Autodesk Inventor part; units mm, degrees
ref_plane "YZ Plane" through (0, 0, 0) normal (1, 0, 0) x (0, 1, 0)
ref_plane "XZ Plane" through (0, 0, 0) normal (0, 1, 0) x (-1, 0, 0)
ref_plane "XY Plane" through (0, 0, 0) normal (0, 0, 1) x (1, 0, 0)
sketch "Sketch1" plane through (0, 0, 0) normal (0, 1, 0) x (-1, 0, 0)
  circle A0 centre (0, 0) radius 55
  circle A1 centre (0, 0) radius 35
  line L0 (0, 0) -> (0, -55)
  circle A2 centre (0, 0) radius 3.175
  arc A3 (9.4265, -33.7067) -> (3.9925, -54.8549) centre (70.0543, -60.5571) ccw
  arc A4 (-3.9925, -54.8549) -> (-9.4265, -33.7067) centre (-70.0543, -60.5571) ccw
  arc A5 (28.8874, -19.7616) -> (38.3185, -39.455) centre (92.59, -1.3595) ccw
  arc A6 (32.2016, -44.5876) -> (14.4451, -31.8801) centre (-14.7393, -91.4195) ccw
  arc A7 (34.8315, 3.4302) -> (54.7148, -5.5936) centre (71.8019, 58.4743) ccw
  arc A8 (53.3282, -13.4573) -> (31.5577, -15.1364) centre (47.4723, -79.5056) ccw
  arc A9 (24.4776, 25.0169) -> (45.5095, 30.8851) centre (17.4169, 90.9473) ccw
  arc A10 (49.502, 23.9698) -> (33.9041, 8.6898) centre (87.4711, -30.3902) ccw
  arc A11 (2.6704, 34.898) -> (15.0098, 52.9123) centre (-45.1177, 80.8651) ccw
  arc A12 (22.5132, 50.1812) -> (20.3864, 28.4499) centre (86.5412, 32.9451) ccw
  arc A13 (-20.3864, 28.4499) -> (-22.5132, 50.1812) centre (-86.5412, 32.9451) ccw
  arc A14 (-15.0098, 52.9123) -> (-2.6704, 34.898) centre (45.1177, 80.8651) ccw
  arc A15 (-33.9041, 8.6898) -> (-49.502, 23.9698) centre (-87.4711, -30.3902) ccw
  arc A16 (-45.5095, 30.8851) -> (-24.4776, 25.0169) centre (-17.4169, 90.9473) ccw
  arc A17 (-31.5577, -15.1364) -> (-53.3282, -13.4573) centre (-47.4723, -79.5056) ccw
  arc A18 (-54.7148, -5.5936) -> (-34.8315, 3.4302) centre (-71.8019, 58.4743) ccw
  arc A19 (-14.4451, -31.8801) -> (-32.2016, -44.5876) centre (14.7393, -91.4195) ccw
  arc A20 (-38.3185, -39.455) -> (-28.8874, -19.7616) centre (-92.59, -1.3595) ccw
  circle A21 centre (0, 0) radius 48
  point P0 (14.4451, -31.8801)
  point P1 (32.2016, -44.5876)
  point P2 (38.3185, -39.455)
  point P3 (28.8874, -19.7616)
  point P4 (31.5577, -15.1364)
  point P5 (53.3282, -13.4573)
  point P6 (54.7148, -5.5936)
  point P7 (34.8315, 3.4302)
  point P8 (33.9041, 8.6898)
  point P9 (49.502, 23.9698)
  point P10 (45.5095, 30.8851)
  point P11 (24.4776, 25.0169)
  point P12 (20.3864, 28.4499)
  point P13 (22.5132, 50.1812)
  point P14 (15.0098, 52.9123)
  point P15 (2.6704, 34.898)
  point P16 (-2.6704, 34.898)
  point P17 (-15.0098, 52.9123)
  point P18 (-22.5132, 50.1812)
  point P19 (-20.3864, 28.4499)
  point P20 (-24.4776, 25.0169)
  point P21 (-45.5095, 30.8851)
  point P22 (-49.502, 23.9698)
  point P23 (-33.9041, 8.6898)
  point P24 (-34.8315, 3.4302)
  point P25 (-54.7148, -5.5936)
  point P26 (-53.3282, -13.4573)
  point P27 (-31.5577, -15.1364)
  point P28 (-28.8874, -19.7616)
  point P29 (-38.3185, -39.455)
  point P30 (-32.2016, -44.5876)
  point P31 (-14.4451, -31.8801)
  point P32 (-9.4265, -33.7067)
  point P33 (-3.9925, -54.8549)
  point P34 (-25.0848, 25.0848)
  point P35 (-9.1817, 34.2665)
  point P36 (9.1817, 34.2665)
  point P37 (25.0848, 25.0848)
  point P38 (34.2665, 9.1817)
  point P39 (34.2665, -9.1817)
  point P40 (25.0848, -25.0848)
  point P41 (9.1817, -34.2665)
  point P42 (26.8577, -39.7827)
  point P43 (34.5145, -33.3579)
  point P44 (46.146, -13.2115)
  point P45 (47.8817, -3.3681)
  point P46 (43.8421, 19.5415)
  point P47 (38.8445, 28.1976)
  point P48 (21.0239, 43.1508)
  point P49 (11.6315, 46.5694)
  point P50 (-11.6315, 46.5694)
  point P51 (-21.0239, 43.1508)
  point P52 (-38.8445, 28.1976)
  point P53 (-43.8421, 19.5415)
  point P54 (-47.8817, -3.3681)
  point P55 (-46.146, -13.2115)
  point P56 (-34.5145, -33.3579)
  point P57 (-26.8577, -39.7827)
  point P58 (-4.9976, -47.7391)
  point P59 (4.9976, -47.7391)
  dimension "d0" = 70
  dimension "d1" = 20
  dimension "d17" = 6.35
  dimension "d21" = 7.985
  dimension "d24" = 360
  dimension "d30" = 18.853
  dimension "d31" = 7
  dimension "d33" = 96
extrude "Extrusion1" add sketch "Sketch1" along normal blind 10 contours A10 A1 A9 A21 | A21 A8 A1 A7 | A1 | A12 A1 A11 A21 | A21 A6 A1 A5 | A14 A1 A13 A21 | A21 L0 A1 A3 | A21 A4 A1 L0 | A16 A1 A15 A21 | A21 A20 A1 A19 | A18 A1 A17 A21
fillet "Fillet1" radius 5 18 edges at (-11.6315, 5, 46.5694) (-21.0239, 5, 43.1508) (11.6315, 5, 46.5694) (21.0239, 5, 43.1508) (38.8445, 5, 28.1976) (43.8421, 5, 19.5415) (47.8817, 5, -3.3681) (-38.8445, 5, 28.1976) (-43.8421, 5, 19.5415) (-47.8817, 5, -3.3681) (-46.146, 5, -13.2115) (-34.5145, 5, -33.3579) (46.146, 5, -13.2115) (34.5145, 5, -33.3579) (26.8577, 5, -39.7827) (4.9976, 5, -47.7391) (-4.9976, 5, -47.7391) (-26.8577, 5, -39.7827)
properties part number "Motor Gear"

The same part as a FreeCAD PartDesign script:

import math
import FreeCAD as App
import Part
import Sketcher
from FreeCAD import Vector


def edges_at(feature, points):
    """Names of the edges that pass closest to the given points."""
    edges = feature.Shape.Edges
    near = lambda p: min(range(len(edges)), key=lambda i: edges[i].distToShape(Part.Vertex(*p))[0])
    return sorted({f"Edge{near(p) + 1}" for p in points})

doc = App.newDocument("Part")
params = doc.addObject("Spreadsheet::Sheet", "Params")
for row, (alias, value) in enumerate([
    ("sketch1_radius", "48 mm"),
    ("sketch1_radius2", "35 mm"),
    ("sketch1_diameter", "6.35 mm"),
    ("pad1_length", "10 mm"),
    ("fillet_radius", "5 mm"),
], start=1):
    params.set(f"A{row}", alias)
    params.set(f"B{row}", "=" + value)
    params.setAlias(f"B{row}", alias)

body = doc.addObject("PartDesign::Body", "Body")

sketch1 = doc.addObject("Sketcher::SketchObject", "Sketch")
body.addObject(sketch1)
sketch1.AttachmentSupport = (doc.XZ_Plane, [""])
sketch1.MapMode = "FlatFace"
sketch1.addGeometry([
    Part.ArcOfCircle(Part.Circle(Vector(-87.5, -30.4, 0), Vector(0, 0, 1), 66.3), math.radians(36.11), math.radians(48.85)),
    Part.ArcOfCircle(Part.Circle(Vector(0, 0, 0), Vector(0, 0, 1), 48), math.radians(144.02), math.radians(155.98)),
    Part.ArcOfCircle(Part.Circle(Vector(-17.4, 90.9, 0), Vector(0, 0, 1), 66.3), math.radians(-108.85), math.radians(-96.11)),
    Part.ArcOfCircle(Part.Circle(Vector(0, 0, 0), Vector(0, 0, 1), 35), math.radians(125.62), math.radians(134.38)),
    Part.ArcOfCircle(Part.Circle(Vector(-86.5, 32.9, 0), Vector(0, 0, 1), 66.3), math.radians(-3.89), math.radians(8.85)),
    Part.ArcOfCircle(Part.Circle(Vector(0, 0, 0), Vector(0, 0, 1), 48), math.radians(104.02), math.radians(115.98)),
    Part.ArcOfCircle(Part.Circle(Vector(45.1, 80.9, 0), Vector(0, 0, 1), 66.3), math.radians(-148.85), math.radians(-136.11)),
    Part.ArcOfCircle(Part.Circle(Vector(0, 0, 0), Vector(0, 0, 1), 35), math.radians(85.62), math.radians(94.38)),
    Part.ArcOfCircle(Part.Circle(Vector(-45.1, 80.9, 0), Vector(0, 0, 1), 66.3), math.radians(-43.89), math.radians(-31.15)),
    Part.ArcOfCircle(Part.Circle(Vector(0, 0, 0), Vector(0, 0, 1), 48), math.radians(64.02), math.radians(75.98)),
    Part.ArcOfCircle(Part.Circle(Vector(86.5, 32.9, 0), Vector(0, 0, 1), 66.3), math.radians(171.15), math.radians(183.89)),
    Part.ArcOfCircle(Part.Circle(Vector(0, 0, 0), Vector(0, 0, 1), 35), math.radians(45.62), math.radians(54.38)),
    Part.ArcOfCircle(Part.Circle(Vector(17.4, 90.9, 0), Vector(0, 0, 1), 66.3), math.radians(-83.89), math.radians(-71.15)),
    Part.ArcOfCircle(Part.Circle(Vector(0, 0, 0), Vector(0, 0, 1), 48), math.radians(24.02), math.radians(35.98)),
    Part.ArcOfCircle(Part.Circle(Vector(87.5, -30.4, 0), Vector(0, 0, 1), 66.3), math.radians(131.15), math.radians(143.89)),
    Part.ArcOfCircle(Part.Circle(Vector(0, 0, 0), Vector(0, 0, 1), 35), math.radians(5.62), math.radians(14.38)),
    Part.ArcOfCircle(Part.Circle(Vector(71.8, 58.5, 0), Vector(0, 0, 1), 66.3), math.radians(-123.89), math.radians(-111.15)),
    Part.ArcOfCircle(Part.Circle(Vector(0, 0, 0), Vector(0, 0, 1), 48), math.radians(-15.98), math.radians(-4.02)),
    Part.ArcOfCircle(Part.Circle(Vector(47.5, -79.5, 0), Vector(0, 0, 1), 66.3), math.radians(91.15), math.radians(103.89)),
    Part.ArcOfCircle(Part.Circle(Vector(0, 0, 0), Vector(0, 0, 1), 35), math.radians(-34.38), math.radians(-25.62)),
    Part.ArcOfCircle(Part.Circle(Vector(92.6, -1.4, 0), Vector(0, 0, 1), 66.3), math.radians(-163.89), math.radians(-151.15)),
    Part.ArcOfCircle(Part.Circle(Vector(0, 0, 0), Vector(0, 0, 1), 48), math.radians(-55.98), math.radians(-44.02)),
    Part.ArcOfCircle(Part.Circle(Vector(-14.7, -91.4, 0), Vector(0, 0, 1), 66.3), math.radians(51.15), math.radians(63.89)),
    Part.ArcOfCircle(Part.Circle(Vector(0, 0, 0), Vector(0, 0, 1), 35), math.radians(-74.38), math.radians(-65.62)),
    Part.ArcOfCircle(Part.Circle(Vector(70.1, -60.6, 0), Vector(0, 0, 1), 66.3), math.radians(156.11), math.radians(168.85)),
    Part.ArcOfCircle(Part.Circle(Vector(0, 0, 0), Vector(0, 0, 1), 48), math.radians(-95.98), math.radians(-84.02)),
    Part.ArcOfCircle(Part.Circle(Vector(-70.1, -60.6, 0), Vector(0, 0, 1), 66.3), math.radians(11.15), math.radians(23.89)),
    Part.ArcOfCircle(Part.Circle(Vector(0, 0, 0), Vector(0, 0, 1), 35), math.radians(-114.38), math.radians(-105.62)),
    Part.ArcOfCircle(Part.Circle(Vector(14.7, -91.4, 0), Vector(0, 0, 1), 66.3), math.radians(116.11), math.radians(128.85)),
    Part.ArcOfCircle(Part.Circle(Vector(0, 0, 0), Vector(0, 0, 1), 48), math.radians(-135.98), math.radians(-124.02)),
    Part.ArcOfCircle(Part.Circle(Vector(-92.6, -1.4, 0), Vector(0, 0, 1), 66.3), math.radians(-28.85), math.radians(-16.11)),
    Part.ArcOfCircle(Part.Circle(Vector(0, 0, 0), Vector(0, 0, 1), 35), math.radians(-154.38), math.radians(-145.62)),
    Part.ArcOfCircle(Part.Circle(Vector(-47.5, -79.5, 0), Vector(0, 0, 1), 66.3), math.radians(76.11), math.radians(88.85)),
    Part.ArcOfCircle(Part.Circle(Vector(0, 0, 0), Vector(0, 0, 1), 48), math.radians(-175.98), math.radians(-164.02)),
    Part.ArcOfCircle(Part.Circle(Vector(-71.8, 58.5, 0), Vector(0, 0, 1), 66.3), math.radians(-68.85), math.radians(-56.11)),
    Part.ArcOfCircle(Part.Circle(Vector(0, 0, 0), Vector(0, 0, 1), 35), math.radians(165.62), math.radians(174.38)),
    Part.Circle(Vector(0, 0, 0), Vector(0, 0, 1), 3.2),
], False)
sketch1.addConstraint([
    Sketcher.Constraint("Coincident", 0, 2, 1, 2),
    Sketcher.Constraint("Coincident", 1, 1, 2, 1),
    Sketcher.Constraint("Coincident", 2, 2, 3, 2),
    Sketcher.Constraint("Coincident", 3, 1, 4, 1),
    Sketcher.Constraint("Coincident", 4, 2, 5, 2),
    Sketcher.Constraint("Coincident", 5, 1, 6, 1),
    Sketcher.Constraint("Coincident", 6, 2, 7, 2),
    Sketcher.Constraint("Coincident", 7, 1, 8, 1),
    Sketcher.Constraint("Coincident", 8, 2, 9, 2),
    Sketcher.Constraint("Coincident", 9, 1, 10, 1),
    Sketcher.Constraint("Coincident", 10, 2, 11, 2),
    Sketcher.Constraint("Coincident", 11, 1, 12, 1),
    Sketcher.Constraint("Coincident", 12, 2, 13, 2),
    Sketcher.Constraint("Coincident", 13, 1, 14, 1),
    Sketcher.Constraint("Coincident", 14, 2, 15, 2),
    Sketcher.Constraint("Coincident", 15, 1, 16, 1),
    Sketcher.Constraint("Coincident", 16, 2, 17, 2),
    Sketcher.Constraint("Coincident", 17, 1, 18, 1),
    Sketcher.Constraint("Coincident", 18, 2, 19, 2),
    Sketcher.Constraint("Coincident", 19, 1, 20, 1),
    Sketcher.Constraint("Coincident", 20, 2, 21, 2),
    Sketcher.Constraint("Coincident", 21, 1, 22, 1),
    Sketcher.Constraint("Coincident", 22, 2, 23, 2),
    Sketcher.Constraint("Coincident", 23, 1, 24, 1),
    Sketcher.Constraint("Coincident", 24, 2, 25, 2),
    Sketcher.Constraint("Coincident", 25, 1, 26, 1),
    Sketcher.Constraint("Coincident", 26, 2, 27, 2),
    Sketcher.Constraint("Coincident", 27, 1, 28, 1),
    Sketcher.Constraint("Coincident", 28, 2, 29, 2),
    Sketcher.Constraint("Coincident", 29, 1, 30, 1),
    Sketcher.Constraint("Coincident", 30, 2, 31, 2),
    Sketcher.Constraint("Coincident", 31, 1, 32, 1),
    Sketcher.Constraint("Coincident", 32, 2, 33, 2),
    Sketcher.Constraint("Coincident", 33, 1, 34, 1),
    Sketcher.Constraint("Coincident", 34, 2, 35, 2),
    Sketcher.Constraint("Coincident", 35, 1, 0, 1),
    Sketcher.Constraint("Coincident", 1, 3, -1, 1),
    Sketcher.Constraint("Coincident", 3, 3, -1, 1),
    Sketcher.Constraint("Coincident", 5, 3, -1, 1),
    Sketcher.Constraint("Coincident", 7, 3, -1, 1),
    Sketcher.Constraint("Coincident", 9, 3, -1, 1),
    Sketcher.Constraint("Coincident", 11, 3, -1, 1),
    Sketcher.Constraint("Coincident", 13, 3, -1, 1),
    Sketcher.Constraint("Coincident", 15, 3, -1, 1),
    Sketcher.Constraint("Coincident", 17, 3, -1, 1),
    Sketcher.Constraint("Coincident", 19, 3, -1, 1),
    Sketcher.Constraint("Coincident", 21, 3, -1, 1),
    Sketcher.Constraint("Coincident", 23, 3, -1, 1),
    Sketcher.Constraint("Coincident", 25, 3, -1, 1),
    Sketcher.Constraint("Coincident", 27, 3, -1, 1),
    Sketcher.Constraint("Coincident", 29, 3, -1, 1),
    Sketcher.Constraint("Coincident", 31, 3, -1, 1),
    Sketcher.Constraint("Coincident", 33, 3, -1, 1),
    Sketcher.Constraint("Coincident", 35, 3, -1, 1),
    Sketcher.Constraint("Coincident", 36, 3, -1, 1),
    Sketcher.Constraint("Equal", 1, 5),
    Sketcher.Constraint("Equal", 4, 6),
    Sketcher.Constraint("Equal", 3, 7),
    Sketcher.Constraint("Equal", 6, 8),
    Sketcher.Constraint("Equal", 5, 9),
    Sketcher.Constraint("Equal", 8, 10),
    Sketcher.Constraint("Equal", 7, 11),
    Sketcher.Constraint("Equal", 9, 13),
    Sketcher.Constraint("Equal", 11, 15),
    Sketcher.Constraint("Equal", 10, 16),
    Sketcher.Constraint("Equal", 13, 17),
    Sketcher.Constraint("Equal", 16, 18),
    Sketcher.Constraint("Equal", 15, 19),
    Sketcher.Constraint("Equal", 17, 21),
    Sketcher.Constraint("Equal", 19, 23),
    Sketcher.Constraint("Equal", 18, 24),
    Sketcher.Constraint("Equal", 21, 25),
    Sketcher.Constraint("Equal", 24, 26),
    Sketcher.Constraint("Equal", 23, 27),
    Sketcher.Constraint("Equal", 25, 29),
    Sketcher.Constraint("Equal", 27, 31),
    Sketcher.Constraint("Equal", 26, 32),
    Sketcher.Constraint("Equal", 29, 33),
    Sketcher.Constraint("Equal", 32, 34),
    Sketcher.Constraint("Equal", 31, 35),
    Sketcher.Constraint("Symmetric", 6, 3, 8, 3, -2),
    Sketcher.Constraint("Symmetric", 4, 3, 10, 3, -2),
    Sketcher.Constraint("Symmetric", 24, 3, 26, 3, -2),
    Sketcher.Constraint("Symmetric", 18, 3, 32, 3, -2),
    Sketcher.Constraint("Symmetric", 16, 3, 34, 3, -2),
    Sketcher.Constraint("Horizontal", 2, 2, 11, 1),
    Sketcher.Constraint("Horizontal", 1, 1, 12, 2),
    Sketcher.Constraint("Horizontal", 0, 2, 13, 1),
    Sketcher.Constraint("Horizontal", 22, 2, 27, 1),
    Sketcher.Constraint("Horizontal", 21, 1, 28, 2),
    Sketcher.Constraint("Horizontal", 20, 2, 29, 1),
    Sketcher.Constraint("Horizontal", 19, 1, 30, 2),
    Sketcher.Constraint("Horizontal", 14, 2, 35, 1),
    Sketcher.Constraint("Radius", 1, 48.0),
    Sketcher.Constraint("Radius", 3, 35.0),
    Sketcher.Constraint("Diameter", 36, 6.35),
    Sketcher.Constraint("Radius", 2, 66.305),
    Sketcher.Constraint("Radius", 22, 66.309),
    Sketcher.Constraint("Radius", 28, 66.306),
    Sketcher.Constraint("Radius", 0, 66.3095),
    Sketcher.Constraint("Radius", 4, 66.3074),
    Sketcher.Constraint("Radius", 12, 66.3098),
    Sketcher.Constraint("Radius", 14, 66.3053),
    Sketcher.Constraint("Radius", 20, 66.3061),
    Sketcher.Constraint("Radius", 30, 66.3085),
    Sketcher.Constraint("DistanceY", 20, 3, -1, 1, 1.36),
    Sketcher.Constraint("DistanceX", 22, 3, -1, 1, 14.74),
    Sketcher.Constraint("DistanceY", -1, 1, 10, 2, 28.45),
    Sketcher.Constraint("DistanceY", 22, 2, -1, 1, 31.88),
    Sketcher.Constraint("DistanceY", -1, 1, 4, 3, 32.945),
    Sketcher.Constraint("DistanceY", -1, 1, 6, 3, 80.865),
    Sketcher.Constraint("DistanceX", -1, 1, 12, 3, 17.416),
    Sketcher.Constraint("DistanceX", -1, 1, 16, 3, 71.802),
    Sketcher.Constraint("DistanceX", -1, 1, 20, 3, 92.589),
    Sketcher.Constraint("DistanceY", 24, 3, -1, 1, 60.557),
    Sketcher.Constraint("DistanceX", 0, 2, -1, 1, 43.842),
    Sketcher.Constraint("DistanceY", -1, 1, 2, 2, 25.017),
    Sketcher.Constraint("DistanceY", -1, 1, 7, 1, 34.898),
    Sketcher.Constraint("DistanceX", -1, 1, 17, 1, 46.146),
    Sketcher.Constraint("DistanceX", 35, 1, -1, 1, 33.904),
    Sketcher.Constraint("DistanceY", -1, 1, 16, 3, 58.4743),
    Sketcher.Constraint("DistanceX", -1, 1, 18, 3, 47.4723),
    Sketcher.Constraint("DistanceX", -1, 1, 24, 3, 70.0543),
])
sketch1.setExpression("Constraints[93]", "Params.sketch1_radius")
sketch1.setExpression("Constraints[94]", "Params.sketch1_radius2")
sketch1.setExpression("Constraints[95]", "Params.sketch1_diameter")
pad1 = doc.addObject("PartDesign::Pad", "Pad")
body.addObject(pad1)
pad1.Profile = sketch1
pad1.setExpression("Length", "Params.pad1_length")
pad1.Reversed = True
doc.recompute()

fillet = doc.addObject("PartDesign::Fillet", "Fillet")
body.addObject(fillet)
fillet.Base = (pad1, edges_at(pad1, [
    (-11.632, 5, 46.569),
    (-21.024, 5, 43.151),
    (11.632, 5, 46.569),
    (21.024, 5, 43.151),
    (38.844, 5, 28.198),
    (43.842, 5, 19.541),
    (47.882, 5, -3.368),
    (-38.844, 5, 28.198),
    (-43.842, 5, 19.541),
    (-47.882, 5, -3.368),
    (-46.146, 5, -13.211),
    (-34.514, 5, -33.358),
    (46.146, 5, -13.211),
    (34.514, 5, -33.358),
    (26.858, 5, -39.783),
    (4.998, 5, -47.739),
    (-4.998, 5, -47.739),
    (-26.858, 5, -39.783),
]))
fillet.setExpression("Radius", "Params.fillet_radius")

doc.recompute()
